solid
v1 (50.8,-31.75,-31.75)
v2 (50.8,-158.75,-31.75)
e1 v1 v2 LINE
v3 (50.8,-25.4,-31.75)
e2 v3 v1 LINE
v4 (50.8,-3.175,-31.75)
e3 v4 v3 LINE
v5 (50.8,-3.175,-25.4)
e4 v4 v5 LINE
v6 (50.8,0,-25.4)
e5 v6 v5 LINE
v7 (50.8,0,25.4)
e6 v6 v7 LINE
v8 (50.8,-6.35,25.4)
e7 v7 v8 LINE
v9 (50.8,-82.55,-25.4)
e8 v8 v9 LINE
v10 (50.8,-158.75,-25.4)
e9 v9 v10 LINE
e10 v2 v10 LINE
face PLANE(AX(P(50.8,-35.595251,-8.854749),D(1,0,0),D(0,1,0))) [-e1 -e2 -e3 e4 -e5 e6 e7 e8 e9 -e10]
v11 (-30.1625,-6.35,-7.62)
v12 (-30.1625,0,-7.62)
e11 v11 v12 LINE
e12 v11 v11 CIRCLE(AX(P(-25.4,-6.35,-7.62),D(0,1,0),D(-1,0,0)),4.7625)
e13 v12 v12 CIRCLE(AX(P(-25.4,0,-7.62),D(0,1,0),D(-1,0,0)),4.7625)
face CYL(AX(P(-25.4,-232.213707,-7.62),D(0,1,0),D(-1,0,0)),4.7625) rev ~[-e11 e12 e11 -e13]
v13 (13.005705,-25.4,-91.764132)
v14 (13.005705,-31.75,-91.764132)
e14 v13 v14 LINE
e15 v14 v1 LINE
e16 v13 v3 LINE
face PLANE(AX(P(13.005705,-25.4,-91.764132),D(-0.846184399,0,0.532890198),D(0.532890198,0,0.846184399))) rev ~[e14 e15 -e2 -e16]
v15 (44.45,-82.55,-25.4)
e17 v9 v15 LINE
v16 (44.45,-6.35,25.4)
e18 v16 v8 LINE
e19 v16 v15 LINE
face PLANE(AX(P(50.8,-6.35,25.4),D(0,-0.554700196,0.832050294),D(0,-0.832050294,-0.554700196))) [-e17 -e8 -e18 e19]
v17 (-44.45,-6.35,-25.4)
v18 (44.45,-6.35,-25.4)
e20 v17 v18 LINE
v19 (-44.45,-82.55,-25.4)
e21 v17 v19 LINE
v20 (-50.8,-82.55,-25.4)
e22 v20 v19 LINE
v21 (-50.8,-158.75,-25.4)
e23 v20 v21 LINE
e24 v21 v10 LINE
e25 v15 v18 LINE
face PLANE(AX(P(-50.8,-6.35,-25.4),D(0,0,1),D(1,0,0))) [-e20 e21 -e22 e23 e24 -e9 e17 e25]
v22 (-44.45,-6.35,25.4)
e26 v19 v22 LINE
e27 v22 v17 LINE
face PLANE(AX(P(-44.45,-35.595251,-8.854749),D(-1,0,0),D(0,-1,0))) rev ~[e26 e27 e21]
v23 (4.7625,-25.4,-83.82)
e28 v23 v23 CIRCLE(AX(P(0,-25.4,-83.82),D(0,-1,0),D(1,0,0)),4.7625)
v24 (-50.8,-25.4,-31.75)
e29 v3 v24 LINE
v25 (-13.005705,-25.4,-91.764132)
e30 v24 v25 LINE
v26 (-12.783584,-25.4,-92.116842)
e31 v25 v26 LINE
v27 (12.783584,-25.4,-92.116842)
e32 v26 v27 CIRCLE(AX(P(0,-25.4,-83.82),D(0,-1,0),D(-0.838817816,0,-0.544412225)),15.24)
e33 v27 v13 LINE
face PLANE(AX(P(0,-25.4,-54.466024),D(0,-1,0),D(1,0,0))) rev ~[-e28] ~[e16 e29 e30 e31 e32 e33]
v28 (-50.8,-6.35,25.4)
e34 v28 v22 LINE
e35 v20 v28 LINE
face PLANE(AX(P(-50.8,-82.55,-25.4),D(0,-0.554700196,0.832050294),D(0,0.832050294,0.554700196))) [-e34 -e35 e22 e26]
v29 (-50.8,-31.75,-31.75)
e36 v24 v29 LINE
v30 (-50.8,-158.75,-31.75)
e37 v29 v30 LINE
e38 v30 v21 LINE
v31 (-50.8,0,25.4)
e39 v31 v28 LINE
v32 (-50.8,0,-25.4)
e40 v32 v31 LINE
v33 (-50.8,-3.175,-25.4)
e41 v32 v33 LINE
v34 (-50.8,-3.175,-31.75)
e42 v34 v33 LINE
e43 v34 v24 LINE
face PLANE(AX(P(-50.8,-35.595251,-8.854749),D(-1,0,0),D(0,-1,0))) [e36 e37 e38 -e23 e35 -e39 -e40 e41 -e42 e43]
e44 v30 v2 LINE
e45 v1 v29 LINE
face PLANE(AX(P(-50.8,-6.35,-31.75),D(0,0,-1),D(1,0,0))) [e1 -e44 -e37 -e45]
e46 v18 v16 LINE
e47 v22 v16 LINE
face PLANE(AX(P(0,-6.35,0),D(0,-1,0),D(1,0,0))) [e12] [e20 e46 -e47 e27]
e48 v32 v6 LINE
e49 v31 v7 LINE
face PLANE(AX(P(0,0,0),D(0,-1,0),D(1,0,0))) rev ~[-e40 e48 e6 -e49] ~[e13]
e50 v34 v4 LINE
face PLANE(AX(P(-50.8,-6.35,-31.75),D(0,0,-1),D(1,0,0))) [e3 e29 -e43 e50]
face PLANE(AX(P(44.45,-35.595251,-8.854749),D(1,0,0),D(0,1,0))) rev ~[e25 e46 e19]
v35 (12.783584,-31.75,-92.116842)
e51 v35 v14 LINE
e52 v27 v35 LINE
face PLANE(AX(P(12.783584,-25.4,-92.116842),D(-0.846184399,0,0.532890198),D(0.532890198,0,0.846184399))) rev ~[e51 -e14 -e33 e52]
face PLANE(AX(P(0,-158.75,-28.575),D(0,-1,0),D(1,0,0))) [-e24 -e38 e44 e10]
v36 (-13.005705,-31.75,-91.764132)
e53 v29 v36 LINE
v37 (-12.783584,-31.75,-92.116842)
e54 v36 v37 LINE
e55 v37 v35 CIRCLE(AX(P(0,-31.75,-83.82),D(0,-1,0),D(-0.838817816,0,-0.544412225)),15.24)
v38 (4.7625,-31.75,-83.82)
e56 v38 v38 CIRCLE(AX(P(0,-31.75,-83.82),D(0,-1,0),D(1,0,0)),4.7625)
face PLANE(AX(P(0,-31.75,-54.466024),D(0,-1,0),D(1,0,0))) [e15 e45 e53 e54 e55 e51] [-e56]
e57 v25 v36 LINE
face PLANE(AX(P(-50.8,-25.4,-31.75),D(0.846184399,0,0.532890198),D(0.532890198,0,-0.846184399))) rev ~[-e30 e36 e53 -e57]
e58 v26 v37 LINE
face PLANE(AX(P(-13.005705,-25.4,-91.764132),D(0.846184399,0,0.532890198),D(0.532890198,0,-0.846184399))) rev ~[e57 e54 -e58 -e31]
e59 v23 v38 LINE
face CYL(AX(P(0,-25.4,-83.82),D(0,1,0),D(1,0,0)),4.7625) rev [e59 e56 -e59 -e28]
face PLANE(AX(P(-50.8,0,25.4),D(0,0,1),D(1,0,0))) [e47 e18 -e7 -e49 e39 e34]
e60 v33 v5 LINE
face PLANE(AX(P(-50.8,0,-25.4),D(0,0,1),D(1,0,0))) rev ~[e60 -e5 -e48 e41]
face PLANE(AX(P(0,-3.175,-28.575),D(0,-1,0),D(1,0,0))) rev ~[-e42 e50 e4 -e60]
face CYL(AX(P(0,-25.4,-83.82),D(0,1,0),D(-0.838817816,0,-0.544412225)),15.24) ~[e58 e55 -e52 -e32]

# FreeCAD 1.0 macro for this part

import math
import FreeCAD as App
import Part
import Sketcher

V = App.Vector
Q = App.Units.Quantity


def add_polygon(sketch, points):
    """Adds a closed chain of lines whose ends are joined by coincident constraints."""
    first, n = sketch.GeometryCount, len(points)
    for a, b in zip(points, points[1:] + points[:1]):
        sketch.addGeometry(Part.LineSegment(App.Vector(*a, 0), App.Vector(*b, 0)), False)
    for i in range(n):
        sketch.addConstraint(Sketcher.Constraint("Coincident", first + i, 2, first + (i + 1) % n, 1))

doc = App.newDocument("Part")
body = doc.addObject("PartDesign::Body", "Body")

# Sketch on XZ plane
sketch1 = body.newObject("Sketcher::SketchObject", "Sketch")
sketch1.AttachmentSupport = (doc.getObject("XZ_Plane"), [""])
sketch1.MapMode = "FlatFace"
add_polygon(sketch1, [(-51, 25), (-51, -25), (51, -25), (51, 25)])  # lines 0-3
sketch1.addConstraint([
    Sketcher.Constraint("Vertical", 0),
    Sketcher.Constraint("Horizontal", 1),
    Sketcher.Constraint("Vertical", 2),
    Sketcher.Constraint("Horizontal", 3),
    Sketcher.Constraint("Symmetric", 0, 2, 2, 2, -1, 1),
    Sketcher.Constraint("DistanceX", 1, 1, 1, 2, Q("4 in")),
    Sketcher.Constraint("DistanceY", 0, 2, 0, 1, Q("2 in")),
])
pad1 = body.newObject("PartDesign::Pad", "Pad")
pad1.Profile = sketch1
pad1.Length = Q("0.25 in")

# Sketch on XZ plane
sketch2 = body.newObject("Sketcher::SketchObject", "Sketch001")
sketch2.AttachmentSupport = (doc.getObject("XZ_Plane"), [""])
sketch2.MapMode = "FlatFace"
sketch2.AttachmentOffset = App.Placement(V(0, 0, 0.25 * 25.4), App.Rotation())
add_polygon(sketch2, [(-51, -25), (-51, -32), (51, -32), (51, -25)])  # lines 0-3
sketch2.addConstraint([
    Sketcher.Constraint("Vertical", 0),
    Sketcher.Constraint("Horizontal", 1),
    Sketcher.Constraint("Vertical", 2),
    Sketcher.Constraint("Horizontal", 3),
    Sketcher.Constraint("DistanceX", 1, 1, 1, 2, Q("4 in")),
    Sketcher.Constraint("DistanceX", 0, 2, -1, 1, Q("2 in")),
    Sketcher.Constraint("DistanceY", 2, 2, -1, 1, Q("1 in")),
    Sketcher.Constraint("DistanceY", 0, 2, 0, 1, Q("0.25 in")),
])
pad2 = body.newObject("PartDesign::Pad", "Pad001")
pad2.Profile = sketch2
pad2.Type = "TwoLengths"
pad2.Length = Q("6 in")
pad2.Length2 = Q("0.125 in")

# Sketch on XZ plane
sketch3 = body.newObject("Sketcher::SketchObject", "Sketch002")
sketch3.AttachmentSupport = (doc.getObject("XZ_Plane"), [""])
sketch3.MapMode = "FlatFace"
sketch3.AttachmentOffset = App.Placement(V(0, 0, 1 * 25.4), App.Rotation())
sketch3.addGeometry([
    Part.LineSegment(V(-50.8, -31.75, 0), V(-13.01, -91.76, 0)),  # 0
    Part.LineSegment(V(-13.01, -91.76, 0), V(-12.78, -92.12, 0)),  # 1
    Part.ArcOfCircle(Part.Circle(V(0, -83.82, 0), V(0, 0, 1), 15.24), math.radians(-147), math.radians(-33)),  # 2
    Part.LineSegment(V(12.78, -92.12, 0), V(13.01, -91.76, 0)),  # 3
    Part.LineSegment(V(13.01, -91.76, 0), V(50.8, -31.75, 0)),  # 4
    Part.LineSegment(V(50.8, -31.75, 0), V(-50.8, -31.75, 0)),  # 5
    Part.Circle(V(0, -83.82, 0), V(0, 0, 1), 4.76),  # 6
], False)
sketch3.addConstraint([
    Sketcher.Constraint("Coincident", 0, 2, 1, 1),
    Sketcher.Constraint("Coincident", 1, 2, 2, 1),
    Sketcher.Constraint("Coincident", 2, 2, 3, 1),
    Sketcher.Constraint("Coincident", 3, 2, 4, 1),
    Sketcher.Constraint("Coincident", 4, 2, 5, 1),
    Sketcher.Constraint("Coincident", 5, 2, 0, 1),
    Sketcher.Constraint("Horizontal", 5),
    Sketcher.Constraint("Coincident", 6, 3, 2, 3),
    Sketcher.Constraint("Symmetric", 1, 2, 2, 2, -2),
    Sketcher.Constraint("Symmetric", 0, 2, 3, 2, -2),
    Sketcher.Constraint("Parallel", 0, 1),
    Sketcher.Constraint("Parallel", 3, 4),
    Sketcher.Constraint("Radius", 2, Q("0.6 in")),
    Sketcher.Constraint("DistanceX", 5, 2, 5, 1, Q("4 in")),
    Sketcher.Constraint("Diameter", 6, Q("0.375 in")),
    Sketcher.Constraint("DistanceY", 2, 3, -1, 1, Q("3.3 in")),
    Sketcher.Constraint("DistanceY", 4, 2, -1, 1, Q("1.25 in")),
    Sketcher.Constraint("Distance", 0, 70.923232),
    Sketcher.Constraint("DistanceX", 0, 2, 1, 2, 0.222122),
])
pad3 = body.newObject("PartDesign::Pad", "Pad002")
pad3.Profile = sketch3
pad3.Length = Q("0.25 in")

# Sketch on YZ plane
sketch4 = body.newObject("Sketcher::SketchObject", "Sketch003")
sketch4.AttachmentSupport = (doc.getObject("YZ_Plane"), [""])
sketch4.MapMode = "FlatFace"
sketch4.AttachmentOffset = App.Placement(V(0, 0, -2 * 25.4), App.Rotation())
add_polygon(sketch4, [(-83, -25), (-6, 25), (-6, -25)])  # lines 0-2
sketch4.addConstraint([
    Sketcher.Constraint("Vertical", 1),
    Sketcher.Constraint("Horizontal", 2),
    Sketcher.Constraint("DistanceX", 2, 2, 2, 1, Q("3 in")),
    Sketcher.Constraint("DistanceY", 1, 2, 1, 1, Q("2 in")),
    Sketcher.Constraint("DistanceY", -1, 1, 0, 2, Q("1 in")),
    Sketcher.Constraint("DistanceX", 0, 2, -1, 1, Q("0.25 in")),
])
pad4 = body.newObject("PartDesign::Pad", "Pad003")
pad4.Profile = sketch4
pad4.Length = Q("0.25 in")

# Sketch on YZ plane
sketch5 = body.newObject("Sketcher::SketchObject", "Sketch004")
sketch5.AttachmentSupport = (doc.getObject("YZ_Plane"), [""])
sketch5.MapMode = "FlatFace"
sketch5.AttachmentOffset = App.Placement(V(0, 0, 2 * 25.4), App.Rotation())
add_polygon(sketch5, [(-83, -25), (-6, -25), (-6, 25)])  # lines 0-2
sketch5.addConstraint([
    Sketcher.Constraint("Horizontal", 0),
    Sketcher.Constraint("Vertical", 1),
    Sketcher.Constraint("DistanceX", 0, 1, 0, 2, Q("3 in")),
    Sketcher.Constraint("DistanceY", 1, 1, 1, 2, Q("2 in")),
    Sketcher.Constraint("DistanceY", 0, 2, -1, 1, Q("1 in")),
    Sketcher.Constraint("DistanceX", 0, 2, -1, 1, Q("0.25 in")),
])
pad5 = body.newObject("PartDesign::Pad", "Pad004")
pad5.Profile = sketch5
pad5.Length = Q("0.25 in")
pad5.Reversed = True

# Sketch on XZ plane
sketch6 = body.newObject("Sketcher::SketchObject", "Sketch005")
sketch6.AttachmentSupport = (doc.getObject("XZ_Plane"), [""])
sketch6.MapMode = "FlatFace"
sketch6.AttachmentOffset = App.Placement(V(0, 0, 0.25 * 25.4), App.Rotation())
sketch6.addGeometry(Part.Circle(V(-25.4, -7.6, 0), V(0, 0, 1), 4.8), False)
sketch6.addConstraint([
    Sketcher.Constraint("Diameter", 0, Q("0.375 in")),
    Sketcher.Constraint("DistanceX", 0, 3, -1, 1, Q("1 in")),
    Sketcher.Constraint("DistanceY", 0, 3, -1, 1, Q("0.3 in")),
])
doc.recompute()
hole = body.newObject("PartDesign::Hole", "Hole")
hole.Profile = sketch6
hole.ThreadType = "None"
hole.Diameter = Q("0.375 in")
hole.DepthType = "ThroughAll"

doc.recompute()
